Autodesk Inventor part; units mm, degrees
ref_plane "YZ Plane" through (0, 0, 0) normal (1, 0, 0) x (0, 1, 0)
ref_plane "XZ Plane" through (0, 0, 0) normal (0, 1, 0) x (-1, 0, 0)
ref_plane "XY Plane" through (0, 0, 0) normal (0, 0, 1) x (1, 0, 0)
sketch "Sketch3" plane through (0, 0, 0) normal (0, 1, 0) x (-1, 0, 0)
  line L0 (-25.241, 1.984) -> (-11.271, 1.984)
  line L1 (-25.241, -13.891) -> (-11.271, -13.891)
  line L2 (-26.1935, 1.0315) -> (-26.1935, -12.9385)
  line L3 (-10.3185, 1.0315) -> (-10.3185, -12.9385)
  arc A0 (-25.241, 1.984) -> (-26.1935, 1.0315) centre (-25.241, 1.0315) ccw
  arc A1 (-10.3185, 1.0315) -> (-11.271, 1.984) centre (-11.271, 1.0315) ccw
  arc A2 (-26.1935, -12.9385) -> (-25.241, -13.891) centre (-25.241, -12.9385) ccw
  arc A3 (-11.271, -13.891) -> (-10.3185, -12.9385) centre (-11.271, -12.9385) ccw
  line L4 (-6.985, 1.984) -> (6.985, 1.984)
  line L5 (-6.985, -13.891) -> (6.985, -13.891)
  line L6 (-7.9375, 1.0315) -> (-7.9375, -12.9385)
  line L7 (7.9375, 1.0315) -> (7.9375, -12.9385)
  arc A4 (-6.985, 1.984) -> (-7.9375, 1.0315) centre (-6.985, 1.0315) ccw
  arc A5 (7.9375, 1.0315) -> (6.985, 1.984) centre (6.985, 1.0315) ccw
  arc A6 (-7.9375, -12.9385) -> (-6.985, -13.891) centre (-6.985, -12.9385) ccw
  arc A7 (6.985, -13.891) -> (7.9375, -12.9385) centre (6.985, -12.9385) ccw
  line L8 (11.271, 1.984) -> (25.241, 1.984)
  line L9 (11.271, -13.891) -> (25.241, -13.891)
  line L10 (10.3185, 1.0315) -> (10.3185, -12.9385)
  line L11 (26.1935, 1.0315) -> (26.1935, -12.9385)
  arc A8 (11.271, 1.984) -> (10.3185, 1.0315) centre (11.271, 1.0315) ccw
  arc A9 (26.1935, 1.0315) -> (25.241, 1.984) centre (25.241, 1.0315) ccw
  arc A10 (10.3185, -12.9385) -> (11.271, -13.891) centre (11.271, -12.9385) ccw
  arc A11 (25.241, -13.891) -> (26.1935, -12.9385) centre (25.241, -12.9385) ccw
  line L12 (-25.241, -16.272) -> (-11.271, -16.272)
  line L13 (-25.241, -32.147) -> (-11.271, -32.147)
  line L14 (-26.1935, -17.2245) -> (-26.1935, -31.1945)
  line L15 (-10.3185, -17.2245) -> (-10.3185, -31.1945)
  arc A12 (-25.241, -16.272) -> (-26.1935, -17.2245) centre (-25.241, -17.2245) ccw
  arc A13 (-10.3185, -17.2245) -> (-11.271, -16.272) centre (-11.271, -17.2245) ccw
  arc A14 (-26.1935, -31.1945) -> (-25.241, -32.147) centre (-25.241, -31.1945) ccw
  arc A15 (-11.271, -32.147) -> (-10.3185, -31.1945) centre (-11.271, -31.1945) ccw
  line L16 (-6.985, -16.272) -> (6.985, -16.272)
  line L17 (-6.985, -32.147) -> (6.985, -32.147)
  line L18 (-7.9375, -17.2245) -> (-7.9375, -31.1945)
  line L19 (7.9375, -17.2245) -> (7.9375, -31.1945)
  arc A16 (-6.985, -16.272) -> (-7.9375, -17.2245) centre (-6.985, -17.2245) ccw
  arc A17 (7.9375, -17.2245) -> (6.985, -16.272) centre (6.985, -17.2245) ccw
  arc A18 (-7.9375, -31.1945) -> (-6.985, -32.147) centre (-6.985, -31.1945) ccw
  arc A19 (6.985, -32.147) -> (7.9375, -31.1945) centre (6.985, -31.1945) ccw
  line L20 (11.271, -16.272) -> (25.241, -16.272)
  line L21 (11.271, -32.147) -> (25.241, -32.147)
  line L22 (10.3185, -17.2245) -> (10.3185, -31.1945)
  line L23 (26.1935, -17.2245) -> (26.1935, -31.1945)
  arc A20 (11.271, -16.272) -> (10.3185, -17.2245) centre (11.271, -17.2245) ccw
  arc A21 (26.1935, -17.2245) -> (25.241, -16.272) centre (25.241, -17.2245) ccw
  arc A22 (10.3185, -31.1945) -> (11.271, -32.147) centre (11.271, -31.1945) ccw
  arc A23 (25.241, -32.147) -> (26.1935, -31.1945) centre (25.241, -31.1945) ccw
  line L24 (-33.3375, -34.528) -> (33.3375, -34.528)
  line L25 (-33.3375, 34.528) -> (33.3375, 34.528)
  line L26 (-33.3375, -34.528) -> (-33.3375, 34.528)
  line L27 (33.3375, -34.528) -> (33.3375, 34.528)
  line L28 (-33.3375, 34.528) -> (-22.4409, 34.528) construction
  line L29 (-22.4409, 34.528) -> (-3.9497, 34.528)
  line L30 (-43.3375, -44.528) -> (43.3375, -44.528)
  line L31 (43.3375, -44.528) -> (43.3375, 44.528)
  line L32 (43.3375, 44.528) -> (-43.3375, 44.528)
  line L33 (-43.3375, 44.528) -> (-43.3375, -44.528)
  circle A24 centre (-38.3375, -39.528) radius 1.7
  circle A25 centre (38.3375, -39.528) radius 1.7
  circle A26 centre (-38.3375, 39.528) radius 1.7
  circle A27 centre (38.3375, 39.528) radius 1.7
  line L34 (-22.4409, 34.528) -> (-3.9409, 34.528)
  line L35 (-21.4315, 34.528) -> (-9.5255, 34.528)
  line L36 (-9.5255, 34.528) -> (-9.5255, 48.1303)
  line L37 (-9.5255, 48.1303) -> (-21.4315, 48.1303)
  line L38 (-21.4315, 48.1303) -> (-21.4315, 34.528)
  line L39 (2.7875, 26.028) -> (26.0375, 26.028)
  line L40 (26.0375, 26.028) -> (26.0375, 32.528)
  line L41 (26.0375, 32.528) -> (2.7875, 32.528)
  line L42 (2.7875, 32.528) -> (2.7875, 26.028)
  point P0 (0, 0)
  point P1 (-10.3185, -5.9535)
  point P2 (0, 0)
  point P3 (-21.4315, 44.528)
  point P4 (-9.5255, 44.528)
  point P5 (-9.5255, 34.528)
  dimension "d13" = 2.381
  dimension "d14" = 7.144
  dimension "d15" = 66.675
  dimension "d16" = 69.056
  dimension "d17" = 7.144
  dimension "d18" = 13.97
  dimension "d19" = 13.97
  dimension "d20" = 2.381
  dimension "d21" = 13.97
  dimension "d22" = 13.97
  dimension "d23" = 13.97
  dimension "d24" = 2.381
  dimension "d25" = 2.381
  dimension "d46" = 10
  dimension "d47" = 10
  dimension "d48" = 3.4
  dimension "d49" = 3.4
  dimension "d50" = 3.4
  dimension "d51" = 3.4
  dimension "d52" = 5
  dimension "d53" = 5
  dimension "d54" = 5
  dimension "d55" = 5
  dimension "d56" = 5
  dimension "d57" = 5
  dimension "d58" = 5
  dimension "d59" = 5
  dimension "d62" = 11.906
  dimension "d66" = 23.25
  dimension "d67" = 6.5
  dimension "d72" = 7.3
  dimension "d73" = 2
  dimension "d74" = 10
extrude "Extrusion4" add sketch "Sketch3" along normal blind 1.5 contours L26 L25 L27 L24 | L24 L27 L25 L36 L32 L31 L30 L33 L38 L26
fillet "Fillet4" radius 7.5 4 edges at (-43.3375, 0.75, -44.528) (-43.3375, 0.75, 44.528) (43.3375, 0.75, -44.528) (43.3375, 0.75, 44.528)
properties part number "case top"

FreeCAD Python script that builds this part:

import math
import FreeCAD as App
import Part
import Sketcher
from FreeCAD import Vector


def edges_at(feature, points):
    """Names of the edges that pass closest to the given points."""
    edges = feature.Shape.Edges
    near = lambda p: min(range(len(edges)), key=lambda i: edges[i].distToShape(Part.Vertex(*p))[0])
    return sorted({f"Edge{near(p) + 1}" for p in points})

doc = App.newDocument("Part")
body = doc.addObject("PartDesign::Body", "Body")

# Sketch on XZ plane
sketch1 = doc.addObject("Sketcher::SketchObject", "Sketch")
body.addObject(sketch1)
sketch1.AttachmentSupport = (doc.XZ_Plane, [""])
sketch1.MapMode = "FlatFace"
sketch1.addGeometry([
    Part.LineSegment(Vector(9.5, 34.5, 0), Vector(21.4, 34.5, 0)),  # 0
    Part.LineSegment(Vector(21.4, 34.5, 0), Vector(21.4, 44.5, 0)),  # 1
    Part.LineSegment(Vector(21.4, 44.5, 0), Vector(43.3, 44.5, 0)),  # 2
    Part.LineSegment(Vector(43.3, 44.5, 0), Vector(43.3, -44.5, 0)),  # 3
    Part.LineSegment(Vector(43.3, -44.5, 0), Vector(-43.3, -44.5, 0)),  # 4
    Part.LineSegment(Vector(-43.3, -44.5, 0), Vector(-43.3, 44.5, 0)),  # 5
    Part.LineSegment(Vector(-43.3, 44.5, 0), Vector(9.5, 44.5, 0)),  # 6
    Part.LineSegment(Vector(9.5, 44.5, 0), Vector(9.5, 34.5, 0)),  # 7
    Part.ArcOfCircle(Part.Circle(Vector(25.2, -17.2, 0), Vector(0, 0, 1), 1), math.radians(0), math.radians(90)),  # 8
    Part.LineSegment(Vector(25.2, -16.3, 0), Vector(11.3, -16.3, 0)),  # 9
    Part.ArcOfCircle(Part.Circle(Vector(11.3, -17.2, 0), Vector(0, 0, 1), 1), math.radians(90), math.radians(180)),  # 10
    Part.LineSegment(Vector(10.3, -17.2, 0), Vector(10.3, -31.2, 0)),  # 11
    Part.ArcOfCircle(Part.Circle(Vector(11.3, -31.2, 0), Vector(0, 0, 1), 1), math.radians(180), math.radians(270)),  # 12
    Part.LineSegment(Vector(11.3, -32.1, 0), Vector(25.2, -32.1, 0)),  # 13
    Part.ArcOfCircle(Part.Circle(Vector(25.2, -31.2, 0), Vector(0, 0, 1), 1), math.radians(-90), math.radians(0)),  # 14
    Part.LineSegment(Vector(26.2, -31.2, 0), Vector(26.2, -17.2, 0)),  # 15
    Part.ArcOfCircle(Part.Circle(Vector(25.2, 1, 0), Vector(0, 0, 1), 1), math.radians(0), math.radians(90)),  # 16
    Part.LineSegment(Vector(25.2, 2, 0), Vector(11.3, 2, 0)),  # 17
    Part.ArcOfCircle(Part.Circle(Vector(11.3, 1, 0), Vector(0, 0, 1), 1), math.radians(90), math.radians(180)),  # 18
    Part.LineSegment(Vector(10.3, 1, 0), Vector(10.3, -12.9, 0)),  # 19
    Part.ArcOfCircle(Part.Circle(Vector(11.3, -12.9, 0), Vector(0, 0, 1), 1), math.radians(180), math.radians(270)),  # 20
    Part.LineSegment(Vector(11.3, -13.9, 0), Vector(25.2, -13.9, 0)),  # 21
    Part.ArcOfCircle(Part.Circle(Vector(25.2, -12.9, 0), Vector(0, 0, 1), 1), math.radians(-90), math.radians(0)),  # 22
    Part.LineSegment(Vector(26.2, -12.9, 0), Vector(26.2, 1, 0)),  # 23
    Part.ArcOfCircle(Part.Circle(Vector(7, -17.2, 0), Vector(0, 0, 1), 1), math.radians(0), math.radians(90)),  # 24
    Part.LineSegment(Vector(7, -16.3, 0), Vector(-7, -16.3, 0)),  # 25
    Part.ArcOfCircle(Part.Circle(Vector(-7, -17.2, 0), Vector(0, 0, 1), 1), math.radians(90), math.radians(180)),  # 26
    Part.LineSegment(Vector(-7.9, -17.2, 0), Vector(-7.9, -31.2, 0)),  # 27
    Part.ArcOfCircle(Part.Circle(Vector(-7, -31.2, 0), Vector(0, 0, 1), 1), math.radians(180), math.radians(270)),  # 28
    Part.LineSegment(Vector(-7, -32.1, 0), Vector(7, -32.1, 0)),  # 29
    Part.ArcOfCircle(Part.Circle(Vector(7, -31.2, 0), Vector(0, 0, 1), 1), math.radians(-90), math.radians(0)),  # 30
    Part.LineSegment(Vector(7.9, -31.2, 0), Vector(7.9, -17.2, 0)),  # 31
    Part.ArcOfCircle(Part.Circle(Vector(-11.3, -17.2, 0), Vector(0, 0, 1), 1), math.radians(0), math.radians(90)),  # 32
    Part.LineSegment(Vector(-11.3, -16.3, 0), Vector(-25.2, -16.3, 0)),  # 33
    Part.ArcOfCircle(Part.Circle(Vector(-25.2, -17.2, 0), Vector(0, 0, 1), 1), math.radians(90), math.radians(180)),  # 34
    Part.LineSegment(Vector(-26.2, -17.2, 0), Vector(-26.2, -31.2, 0)),  # 35
    Part.ArcOfCircle(Part.Circle(Vector(-25.2, -31.2, 0), Vector(0, 0, 1), 1), math.radians(180), math.radians(270)),  # 36
    Part.LineSegment(Vector(-25.2, -32.1, 0), Vector(-11.3, -32.1, 0)),  # 37
    Part.ArcOfCircle(Part.Circle(Vector(-11.3, -31.2, 0), Vector(0, 0, 1), 1), math.radians(-90), math.radians(0)),  # 38
    Part.LineSegment(Vector(-10.3, -31.2, 0), Vector(-10.3, -17.2, 0)),  # 39
    Part.ArcOfCircle(Part.Circle(Vector(7, 1, 0), Vector(0, 0, 1), 1), math.radians(0), math.radians(90)),  # 40
    Part.LineSegment(Vector(7, 2, 0), Vector(-7, 2, 0)),  # 41
    Part.ArcOfCircle(Part.Circle(Vector(-7, 1, 0), Vector(0, 0, 1), 1), math.radians(90), math.radians(180)),  # 42
    Part.LineSegment(Vector(-7.9, 1, 0), Vector(-7.9, -12.9, 0)),  # 43
    Part.ArcOfCircle(Part.Circle(Vector(-7, -12.9, 0), Vector(0, 0, 1), 1), math.radians(180), math.radians(270)),  # 44
    Part.LineSegment(Vector(-7, -13.9, 0), Vector(7, -13.9, 0)),  # 45
    Part.ArcOfCircle(Part.Circle(Vector(7, -12.9, 0), Vector(0, 0, 1), 1), math.radians(-90), math.radians(0)),  # 46
    Part.LineSegment(Vector(7.9, -12.9, 0), Vector(7.9, 1, 0)),  # 47
    Part.ArcOfCircle(Part.Circle(Vector(-11.3, 1, 0), Vector(0, 0, 1), 1), math.radians(0), math.radians(90)),  # 48
    Part.LineSegment(Vector(-11.3, 2, 0), Vector(-25.2, 2, 0)),  # 49
    Part.ArcOfCircle(Part.Circle(Vector(-25.2, 1, 0), Vector(0, 0, 1), 1), math.radians(90), math.radians(180)),  # 50
    Part.LineSegment(Vector(-26.2, 1, 0), Vector(-26.2, -12.9, 0)),  # 51
    Part.ArcOfCircle(Part.Circle(Vector(-25.2, -12.9, 0), Vector(0, 0, 1), 1), math.radians(180), math.radians(270)),  # 52
    Part.LineSegment(Vector(-25.2, -13.9, 0), Vector(-11.3, -13.9, 0)),  # 53
    Part.ArcOfCircle(Part.Circle(Vector(-11.3, -12.9, 0), Vector(0, 0, 1), 1), math.radians(-90), math.radians(0)),  # 54
    Part.LineSegment(Vector(-10.3, -12.9, 0), Vector(-10.3, 1, 0)),  # 55
    Part.LineSegment(Vector(-26, 26, 0), Vector(-2.8, 26, 0)),  # 56
    Part.LineSegment(Vector(-2.8, 26, 0), Vector(-2.8, 32.5, 0)),  # 57
    Part.LineSegment(Vector(-2.8, 32.5, 0), Vector(-26, 32.5, 0)),  # 58
    Part.LineSegment(Vector(-26, 32.5, 0), Vector(-26, 26, 0)),  # 59
    Part.Circle(Vector(-38.3, -39.5, 0), Vector(0, 0, 1), 1.7),  # 60
    Part.Circle(Vector(38.3, 39.5, 0), Vector(0, 0, 1), 1.7),  # 61
    Part.Circle(Vector(-38.3, 39.5, 0), Vector(0, 0, 1), 1.7),  # 62
    Part.Circle(Vector(38.3, -39.5, 0), Vector(0, 0, 1), 1.7),  # 63
], False)
sketch1.addConstraint([
    Sketcher.Constraint("Coincident", 0, 2, 1, 1),
    Sketcher.Constraint("Coincident", 1, 2, 2, 1),
    Sketcher.Constraint("Coincident", 2, 2, 3, 1),
    Sketcher.Constraint("Coincident", 3, 2, 4, 1),
    Sketcher.Constraint("Coincident", 4, 2, 5, 1),
    Sketcher.Constraint("Coincident", 5, 2, 6, 1),
    Sketcher.Constraint("Coincident", 6, 2, 7, 1),
    Sketcher.Constraint("Coincident", 7, 2, 0, 1),
    Sketcher.Constraint("Tangent", 8, 2, 9, 1),
    Sketcher.Constraint("Tangent", 9, 2, 10, 1),
    Sketcher.Constraint("Tangent", 10, 2, 11, 1),
    Sketcher.Constraint("Tangent", 11, 2, 12, 1),
    Sketcher.Constraint("Tangent", 12, 2, 13, 1),
    Sketcher.Constraint("Tangent", 13, 2, 14, 1),
    Sketcher.Constraint("Tangent", 14, 2, 15, 1),
    Sketcher.Constraint("Tangent", 15, 2, 8, 1),
    Sketcher.Constraint("Tangent", 16, 2, 17, 1),
    Sketcher.Constraint("Tangent", 17, 2, 18, 1),
    Sketcher.Constraint("Tangent", 18, 2, 19, 1),
    Sketcher.Constraint("Tangent", 19, 2, 20, 1),
    Sketcher.Constraint("Tangent", 20, 2, 21, 1),
    Sketcher.Constraint("Tangent", 21, 2, 22, 1),
    Sketcher.Constraint("Tangent", 22, 2, 23, 1),
    Sketcher.Constraint("Tangent", 23, 2, 16, 1),
    Sketcher.Constraint("Tangent", 24, 2, 25, 1),
    Sketcher.Constraint("Tangent", 25, 2, 26, 1),
    Sketcher.Constraint("Tangent", 26, 2, 27, 1),
    Sketcher.Constraint("Tangent", 27, 2, 28, 1),
    Sketcher.Constraint("Tangent", 28, 2, 29, 1),
    Sketcher.Constraint("Tangent", 29, 2, 30, 1),
    Sketcher.Constraint("Tangent", 30, 2, 31, 1),
    Sketcher.Constraint("Tangent", 31, 2, 24, 1),
    Sketcher.Constraint("Tangent", 32, 2, 33, 1),
    Sketcher.Constraint("Tangent", 33, 2, 34, 1),
    Sketcher.Constraint("Tangent", 34, 2, 35, 1),
    Sketcher.Constraint("Tangent", 35, 2, 36, 1),
    Sketcher.Constraint("Tangent", 36, 2, 37, 1),
    Sketcher.Constraint("Tangent", 37, 2, 38, 1),
    Sketcher.Constraint("Tangent", 38, 2, 39, 1),
    Sketcher.Constraint("Tangent", 39, 2, 32, 1),
    Sketcher.Constraint("Tangent", 40, 2, 41, 1),
    Sketcher.Constraint("Tangent", 41, 2, 42, 1),
    Sketcher.Constraint("Tangent", 42, 2, 43, 1),
    Sketcher.Constraint("Tangent", 43, 2, 44, 1),
    Sketcher.Constraint("Tangent", 44, 2, 45, 1),
    Sketcher.Constraint("Tangent", 45, 2, 46, 1),
    Sketcher.Constraint("Tangent", 46, 2, 47, 1),
    Sketcher.Constraint("Tangent", 47, 2, 40, 1),
    Sketcher.Constraint("Tangent", 48, 2, 49, 1),
    Sketcher.Constraint("Tangent", 49, 2, 50, 1),
    Sketcher.Constraint("Tangent", 50, 2, 51, 1),
    Sketcher.Constraint("Tangent", 51, 2, 52, 1),
    Sketcher.Constraint("Tangent", 52, 2, 53, 1),
    Sketcher.Constraint("Tangent", 53, 2, 54, 1),
    Sketcher.Constraint("Tangent", 54, 2, 55, 1),
    Sketcher.Constraint("Tangent", 55, 2, 48, 1),
    Sketcher.Constraint("Coincident", 56, 2, 57, 1),
    Sketcher.Constraint("Coincident", 57, 2, 58, 1),
    Sketcher.Constraint("Coincident", 58, 2, 59, 1),
    Sketcher.Constraint("Coincident", 59, 2, 56, 1),
    Sketcher.Constraint("Horizontal", 0),
    Sketcher.Constraint("Vertical", 1),
    Sketcher.Constraint("Horizontal", 2),
    Sketcher.Constraint("Vertical", 3),
    Sketcher.Constraint("Horizontal", 4),
    Sketcher.Constraint("Vertical", 5),
    Sketcher.Constraint("Horizontal", 6),
    Sketcher.Constraint("Vertical", 7),
    Sketcher.Constraint("Horizontal", 9),
    Sketcher.Constraint("Vertical", 11),
    Sketcher.Constraint("Horizontal", 13),
    Sketcher.Constraint("Vertical", 15),
    Sketcher.Constraint("Horizontal", 17),
    Sketcher.Constraint("Vertical", 19),
    Sketcher.Constraint("Horizontal", 21),
    Sketcher.Constraint("Vertical", 23),
    Sketcher.Constraint("Horizontal", 25),
    Sketcher.Constraint("Vertical", 27),
    Sketcher.Constraint("Horizontal", 29),
    Sketcher.Constraint("Vertical", 31),
    Sketcher.Constraint("Horizontal", 33),
    Sketcher.Constraint("Vertical", 35),
    Sketcher.Constraint("Horizontal", 37),
    Sketcher.Constraint("Vertical", 39),
    Sketcher.Constraint("Horizontal", 41),
    Sketcher.Constraint("Vertical", 43),
    Sketcher.Constraint("Horizontal", 45),
    Sketcher.Constraint("Vertical", 47),
    Sketcher.Constraint("Horizontal", 49),
    Sketcher.Constraint("Vertical", 51),
    Sketcher.Constraint("Horizontal", 53),
    Sketcher.Constraint("Vertical", 55),
    Sketcher.Constraint("Horizontal", 56),
    Sketcher.Constraint("Vertical", 57),
    Sketcher.Constraint("Horizontal", 58),
    Sketcher.Constraint("Vertical", 59),
    Sketcher.Constraint("Equal", 8, 10),
    Sketcher.Constraint("Equal", 10, 12),
    Sketcher.Constraint("Equal", 12, 14),
    Sketcher.Constraint("Equal", 14, 16),
    Sketcher.Constraint("Equal", 16, 18),
    Sketcher.Constraint("Equal", 18, 20),
    Sketcher.Constraint("Equal", 20, 22),
    Sketcher.Constraint("Equal", 22, 24),
    Sketcher.Constraint("Equal", 24, 26),
    Sketcher.Constraint("Equal", 26, 28),
    Sketcher.Constraint("Equal", 28, 30),
    Sketcher.Constraint("Equal", 30, 32),
    Sketcher.Constraint("Equal", 32, 34),
    Sketcher.Constraint("Equal", 34, 36),
    Sketcher.Constraint("Equal", 36, 38),
    Sketcher.Constraint("Equal", 38, 40),
    Sketcher.Constraint("Equal", 40, 42),
    Sketcher.Constraint("Equal", 42, 44),
    Sketcher.Constraint("Equal", 44, 46),
    Sketcher.Constraint("Equal", 46, 48),
    Sketcher.Constraint("Equal", 48, 50),
    Sketcher.Constraint("Equal", 50, 52),
    Sketcher.Constraint("Equal", 52, 54),
    Sketcher.Constraint("Equal", 60, 61),
    Sketcher.Constraint("Equal", 61, 62),
    Sketcher.Constraint("Equal", 62, 63),
    Sketcher.Constraint("Symmetric", 60, 3, 61, 3, -1, 1),
    Sketcher.Constraint("Symmetric", 62, 3, 63, 3, -1, 1),
    Sketcher.Constraint("Symmetric", 2, 2, 4, 2, -1, 1),
    Sketcher.Constraint("Symmetric", 10, 3, 32, 3, -2),
    Sketcher.Constraint("Symmetric", 14, 3, 36, 3, -2),
    Sketcher.Constraint("Symmetric", 18, 3, 48, 3, -2),
    Sketcher.Constraint("Symmetric", 22, 3, 52, 3, -2),
    Sketcher.Constraint("Symmetric", 61, 3, 62, 3, -2),
    Sketcher.Constraint("Horizontal", 10, 3, 24, 3),
    Sketcher.Constraint("Horizontal", 14, 3, 28, 3),
    Sketcher.Constraint("Horizontal", 18, 3, 40, 3),
    Sketcher.Constraint("Horizontal", 22, 3, 44, 3),
    Sketcher.Constraint("Horizontal", 2, 2, 5, 2),
    Sketcher.Constraint("Vertical", 14, 3, 16, 3),
    Sketcher.Constraint("Vertical", 12, 3, 18, 3),
    Sketcher.Constraint("Vertical", 30, 3, 40, 3),
    Sketcher.Constraint("Vertical", 28, 3, 42, 3),
    Sketcher.Constraint("Equal", 21, 25),
    Sketcher.Constraint("Equal", 53, 11),
    Sketcher.Constraint("Equal", 15, 19),
    Sketcher.Constraint("Diameter", 60, 3.4),
    Sketcher.Constraint("DistanceY", 1, 1, 1, 2, 10.0),
    Sketcher.Constraint("DistanceY", 57, 1, 57, 2, 6.5),
    Sketcher.Constraint("DistanceX", 9, 2, 9, 1, 13.97),
    Sketcher.Constraint("DistanceX", 56, 1, 56, 2, 23.25),
    Sketcher.Constraint("DistanceX", 0, 1, 0, 2, 11.906),
    Sketcher.Constraint("Radius", 8, 0.9525),
    Sketcher.Constraint("DistanceX", 2, 1, 2, 2, 21.906),
    Sketcher.Constraint("DistanceX", 4, 2, 4, 1, 86.675),
    Sketcher.Constraint("DistanceY", 3, 2, 3, 1, 89.056),
    Sketcher.Constraint("DistanceX", -1, 1, 8, 3, 25.241),
    Sketcher.Constraint("DistanceX", -1, 1, 24, 3, 6.985),
    Sketcher.Constraint("DistanceY", 60, 3, -1, 1, 39.528),
    Sketcher.Constraint("DistanceY", 8, 2, -1, 1, 16.272),
    Sketcher.Constraint("DistanceY", -1, 1, 16, 2, 1.984),
    Sketcher.Constraint("DistanceY", -1, 1, 56, 2, 26.028),
    Sketcher.Constraint("DistanceX", 60, 3, -1, 1, 38.3375),
    Sketcher.Constraint("DistanceX", 56, 2, -1, 1, 2.7875),
])
pad1 = doc.addObject("PartDesign::Pad", "Pad")
body.addObject(pad1)
pad1.Profile = sketch1
pad1.Length = 1.5
pad1.Reversed = True
doc.recompute()

fillet = doc.addObject("PartDesign::Fillet", "Fillet")
body.addObject(fillet)
fillet.Base = (pad1, edges_at(pad1, [
    (-43.337, 0.75, -44.528),
    (-43.337, 0.75, 44.528),
    (43.337, 0.75, -44.528),
    (43.337, 0.75, 44.528),
]))
fillet.Radius = 7.5

doc.recompute()
